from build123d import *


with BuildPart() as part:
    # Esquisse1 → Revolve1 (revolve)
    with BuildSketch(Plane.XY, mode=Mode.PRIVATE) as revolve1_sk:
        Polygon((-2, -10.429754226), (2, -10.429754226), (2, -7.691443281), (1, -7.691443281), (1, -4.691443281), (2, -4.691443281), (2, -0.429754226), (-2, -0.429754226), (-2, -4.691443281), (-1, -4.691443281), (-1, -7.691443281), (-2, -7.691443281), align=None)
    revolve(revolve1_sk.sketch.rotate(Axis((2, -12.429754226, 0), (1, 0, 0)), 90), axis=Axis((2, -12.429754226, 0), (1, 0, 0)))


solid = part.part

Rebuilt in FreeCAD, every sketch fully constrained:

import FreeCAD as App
import Part
import Sketcher
from FreeCAD import Vector

doc = App.newDocument("Part")
body = doc.addObject("PartDesign::Body", "Body")

sketch1 = body.newObject("Sketcher::SketchObject", "Sketch")
sketch1.AttachmentSupport = (doc.getObject("XY_Plane"), [""])
sketch1.MapMode = "FlatFace"
sketch1.addGeometry(Part.LineSegment(Vector(-2, -10.4, 0), Vector(2, -10.4, 0)), False)
sketch1.addGeometry(Part.LineSegment(Vector(2, -10.4, 0), Vector(2, -7.7, 0)), False)
sketch1.addGeometry(Part.LineSegment(Vector(2, -7.7, 0), Vector(1, -7.7, 0)), False)
sketch1.addGeometry(Part.LineSegment(Vector(1, -7.7, 0), Vector(1, -4.7, 0)), False)
sketch1.addGeometry(Part.LineSegment(Vector(1, -4.7, 0), Vector(2, -4.7, 0)), False)
sketch1.addGeometry(Part.LineSegment(Vector(2, -4.7, 0), Vector(2, -0.4, 0)), False)
sketch1.addGeometry(Part.LineSegment(Vector(2, -0.4, 0), Vector(-2, -0.4, 0)), False)
sketch1.addGeometry(Part.LineSegment(Vector(-2, -0.4, 0), Vector(-2, -4.7, 0)), False)
sketch1.addGeometry(Part.LineSegment(Vector(-2, -4.7, 0), Vector(-1, -4.7, 0)), False)
sketch1.addGeometry(Part.LineSegment(Vector(-1, -4.7, 0), Vector(-1, -7.7, 0)), False)
sketch1.addGeometry(Part.LineSegment(Vector(-1, -7.7, 0), Vector(-2, -7.7, 0)), False)
sketch1.addGeometry(Part.LineSegment(Vector(-2, -7.7, 0), Vector(-2, -10.4, 0)), False)
sketch1.addGeometry(Part.LineSegment(Vector(-2, -12.4, 0), Vector(2, -12.4, 0)), True)
sketch1.addConstraint(Sketcher.Constraint("Coincident", 0, 2, 1, 1))
sketch1.addConstraint(Sketcher.Constraint("Coincident", 1, 2, 2, 1))
sketch1.addConstraint(Sketcher.Constraint("Coincident", 2, 2, 3, 1))
sketch1.addConstraint(Sketcher.Constraint("Coincident", 3, 2, 4, 1))
sketch1.addConstraint(Sketcher.Constraint("Coincident", 4, 2, 5, 1))
sketch1.addConstraint(Sketcher.Constraint("Coincident", 5, 2, 6, 1))
sketch1.addConstraint(Sketcher.Constraint("Coincident", 6, 2, 7, 1))
sketch1.addConstraint(Sketcher.Constraint("Coincident", 7, 2, 8, 1))
sketch1.addConstraint(Sketcher.Constraint("Coincident", 8, 2, 9, 1))
sketch1.addConstraint(Sketcher.Constraint("Coincident", 9, 2, 10, 1))
sketch1.addConstraint(Sketcher.Constraint("Coincident", 10, 2, 11, 1))
sketch1.addConstraint(Sketcher.Constraint("Coincident", 11, 2, 0, 1))
sketch1.addConstraint(Sketcher.Constraint("Horizontal", 0))
sketch1.addConstraint(Sketcher.Constraint("Vertical", 1))
sketch1.addConstraint(Sketcher.Constraint("Horizontal", 2))
sketch1.addConstraint(Sketcher.Constraint("Vertical", 3))
sketch1.addConstraint(Sketcher.Constraint("Horizontal", 4))
sketch1.addConstraint(Sketcher.Constraint("Vertical", 5))
sketch1.addConstraint(Sketcher.Constraint("Horizontal", 6))
sketch1.addConstraint(Sketcher.Constraint("Vertical", 7))
sketch1.addConstraint(Sketcher.Constraint("Horizontal", 8))
sketch1.addConstraint(Sketcher.Constraint("Vertical", 9))
sketch1.addConstraint(Sketcher.Constraint("Horizontal", 10))
sketch1.addConstraint(Sketcher.Constraint("Vertical", 11))
sketch1.addConstraint(Sketcher.Constraint("Horizontal", 12))
sketch1.addConstraint(Sketcher.Constraint("Symmetric", 4, 2, 7, 2, -2))
sketch1.addConstraint(Sketcher.Constraint("Symmetric", 2, 2, 9, 2, -2))
sketch1.addConstraint(Sketcher.Constraint("Vertical", 1, 2, 4, 2))
sketch1.addConstraint(Sketcher.Constraint("Vertical", 7, 2, 10, 2))
sketch1.addConstraint(Sketcher.Constraint("Vertical", 11, 2, 12, 1))
sketch1.addConstraint(Sketcher.Constraint("Vertical", 5, 2, 12, 2))
sketch1.addConstraint(Sketcher.Constraint("DistanceX", 0, 1, 0, 2, 4.0))
sketch1.addConstraint(Sketcher.Constraint("DistanceX", 2, 2, 2, 1, 1.0))
sketch1.addConstraint(Sketcher.Constraint("DistanceY", 3, 1, 3, 2, 3.0))
sketch1.addConstraint(Sketcher.Constraint("DistanceY", 0, 2, 5, 2, 10.0))
sketch1.addConstraint(Sketcher.Constraint("DistanceY", 12, 1, 11, 2, 2.0))
sketch1.addConstraint(Sketcher.Constraint("DistanceY", 1, 1, 1, 2, 2.738311))
sketch1.addConstraint(Sketcher.Constraint("DistanceY", 0, 2, -1, 1, 10.429754))
revolution = body.newObject("PartDesign::Revolution", "Revolution")
revolution.Profile = sketch1
revolution.ReferenceAxis = (sketch1, ["Axis0"])
revolution.Angle = 360

doc.recompute()
